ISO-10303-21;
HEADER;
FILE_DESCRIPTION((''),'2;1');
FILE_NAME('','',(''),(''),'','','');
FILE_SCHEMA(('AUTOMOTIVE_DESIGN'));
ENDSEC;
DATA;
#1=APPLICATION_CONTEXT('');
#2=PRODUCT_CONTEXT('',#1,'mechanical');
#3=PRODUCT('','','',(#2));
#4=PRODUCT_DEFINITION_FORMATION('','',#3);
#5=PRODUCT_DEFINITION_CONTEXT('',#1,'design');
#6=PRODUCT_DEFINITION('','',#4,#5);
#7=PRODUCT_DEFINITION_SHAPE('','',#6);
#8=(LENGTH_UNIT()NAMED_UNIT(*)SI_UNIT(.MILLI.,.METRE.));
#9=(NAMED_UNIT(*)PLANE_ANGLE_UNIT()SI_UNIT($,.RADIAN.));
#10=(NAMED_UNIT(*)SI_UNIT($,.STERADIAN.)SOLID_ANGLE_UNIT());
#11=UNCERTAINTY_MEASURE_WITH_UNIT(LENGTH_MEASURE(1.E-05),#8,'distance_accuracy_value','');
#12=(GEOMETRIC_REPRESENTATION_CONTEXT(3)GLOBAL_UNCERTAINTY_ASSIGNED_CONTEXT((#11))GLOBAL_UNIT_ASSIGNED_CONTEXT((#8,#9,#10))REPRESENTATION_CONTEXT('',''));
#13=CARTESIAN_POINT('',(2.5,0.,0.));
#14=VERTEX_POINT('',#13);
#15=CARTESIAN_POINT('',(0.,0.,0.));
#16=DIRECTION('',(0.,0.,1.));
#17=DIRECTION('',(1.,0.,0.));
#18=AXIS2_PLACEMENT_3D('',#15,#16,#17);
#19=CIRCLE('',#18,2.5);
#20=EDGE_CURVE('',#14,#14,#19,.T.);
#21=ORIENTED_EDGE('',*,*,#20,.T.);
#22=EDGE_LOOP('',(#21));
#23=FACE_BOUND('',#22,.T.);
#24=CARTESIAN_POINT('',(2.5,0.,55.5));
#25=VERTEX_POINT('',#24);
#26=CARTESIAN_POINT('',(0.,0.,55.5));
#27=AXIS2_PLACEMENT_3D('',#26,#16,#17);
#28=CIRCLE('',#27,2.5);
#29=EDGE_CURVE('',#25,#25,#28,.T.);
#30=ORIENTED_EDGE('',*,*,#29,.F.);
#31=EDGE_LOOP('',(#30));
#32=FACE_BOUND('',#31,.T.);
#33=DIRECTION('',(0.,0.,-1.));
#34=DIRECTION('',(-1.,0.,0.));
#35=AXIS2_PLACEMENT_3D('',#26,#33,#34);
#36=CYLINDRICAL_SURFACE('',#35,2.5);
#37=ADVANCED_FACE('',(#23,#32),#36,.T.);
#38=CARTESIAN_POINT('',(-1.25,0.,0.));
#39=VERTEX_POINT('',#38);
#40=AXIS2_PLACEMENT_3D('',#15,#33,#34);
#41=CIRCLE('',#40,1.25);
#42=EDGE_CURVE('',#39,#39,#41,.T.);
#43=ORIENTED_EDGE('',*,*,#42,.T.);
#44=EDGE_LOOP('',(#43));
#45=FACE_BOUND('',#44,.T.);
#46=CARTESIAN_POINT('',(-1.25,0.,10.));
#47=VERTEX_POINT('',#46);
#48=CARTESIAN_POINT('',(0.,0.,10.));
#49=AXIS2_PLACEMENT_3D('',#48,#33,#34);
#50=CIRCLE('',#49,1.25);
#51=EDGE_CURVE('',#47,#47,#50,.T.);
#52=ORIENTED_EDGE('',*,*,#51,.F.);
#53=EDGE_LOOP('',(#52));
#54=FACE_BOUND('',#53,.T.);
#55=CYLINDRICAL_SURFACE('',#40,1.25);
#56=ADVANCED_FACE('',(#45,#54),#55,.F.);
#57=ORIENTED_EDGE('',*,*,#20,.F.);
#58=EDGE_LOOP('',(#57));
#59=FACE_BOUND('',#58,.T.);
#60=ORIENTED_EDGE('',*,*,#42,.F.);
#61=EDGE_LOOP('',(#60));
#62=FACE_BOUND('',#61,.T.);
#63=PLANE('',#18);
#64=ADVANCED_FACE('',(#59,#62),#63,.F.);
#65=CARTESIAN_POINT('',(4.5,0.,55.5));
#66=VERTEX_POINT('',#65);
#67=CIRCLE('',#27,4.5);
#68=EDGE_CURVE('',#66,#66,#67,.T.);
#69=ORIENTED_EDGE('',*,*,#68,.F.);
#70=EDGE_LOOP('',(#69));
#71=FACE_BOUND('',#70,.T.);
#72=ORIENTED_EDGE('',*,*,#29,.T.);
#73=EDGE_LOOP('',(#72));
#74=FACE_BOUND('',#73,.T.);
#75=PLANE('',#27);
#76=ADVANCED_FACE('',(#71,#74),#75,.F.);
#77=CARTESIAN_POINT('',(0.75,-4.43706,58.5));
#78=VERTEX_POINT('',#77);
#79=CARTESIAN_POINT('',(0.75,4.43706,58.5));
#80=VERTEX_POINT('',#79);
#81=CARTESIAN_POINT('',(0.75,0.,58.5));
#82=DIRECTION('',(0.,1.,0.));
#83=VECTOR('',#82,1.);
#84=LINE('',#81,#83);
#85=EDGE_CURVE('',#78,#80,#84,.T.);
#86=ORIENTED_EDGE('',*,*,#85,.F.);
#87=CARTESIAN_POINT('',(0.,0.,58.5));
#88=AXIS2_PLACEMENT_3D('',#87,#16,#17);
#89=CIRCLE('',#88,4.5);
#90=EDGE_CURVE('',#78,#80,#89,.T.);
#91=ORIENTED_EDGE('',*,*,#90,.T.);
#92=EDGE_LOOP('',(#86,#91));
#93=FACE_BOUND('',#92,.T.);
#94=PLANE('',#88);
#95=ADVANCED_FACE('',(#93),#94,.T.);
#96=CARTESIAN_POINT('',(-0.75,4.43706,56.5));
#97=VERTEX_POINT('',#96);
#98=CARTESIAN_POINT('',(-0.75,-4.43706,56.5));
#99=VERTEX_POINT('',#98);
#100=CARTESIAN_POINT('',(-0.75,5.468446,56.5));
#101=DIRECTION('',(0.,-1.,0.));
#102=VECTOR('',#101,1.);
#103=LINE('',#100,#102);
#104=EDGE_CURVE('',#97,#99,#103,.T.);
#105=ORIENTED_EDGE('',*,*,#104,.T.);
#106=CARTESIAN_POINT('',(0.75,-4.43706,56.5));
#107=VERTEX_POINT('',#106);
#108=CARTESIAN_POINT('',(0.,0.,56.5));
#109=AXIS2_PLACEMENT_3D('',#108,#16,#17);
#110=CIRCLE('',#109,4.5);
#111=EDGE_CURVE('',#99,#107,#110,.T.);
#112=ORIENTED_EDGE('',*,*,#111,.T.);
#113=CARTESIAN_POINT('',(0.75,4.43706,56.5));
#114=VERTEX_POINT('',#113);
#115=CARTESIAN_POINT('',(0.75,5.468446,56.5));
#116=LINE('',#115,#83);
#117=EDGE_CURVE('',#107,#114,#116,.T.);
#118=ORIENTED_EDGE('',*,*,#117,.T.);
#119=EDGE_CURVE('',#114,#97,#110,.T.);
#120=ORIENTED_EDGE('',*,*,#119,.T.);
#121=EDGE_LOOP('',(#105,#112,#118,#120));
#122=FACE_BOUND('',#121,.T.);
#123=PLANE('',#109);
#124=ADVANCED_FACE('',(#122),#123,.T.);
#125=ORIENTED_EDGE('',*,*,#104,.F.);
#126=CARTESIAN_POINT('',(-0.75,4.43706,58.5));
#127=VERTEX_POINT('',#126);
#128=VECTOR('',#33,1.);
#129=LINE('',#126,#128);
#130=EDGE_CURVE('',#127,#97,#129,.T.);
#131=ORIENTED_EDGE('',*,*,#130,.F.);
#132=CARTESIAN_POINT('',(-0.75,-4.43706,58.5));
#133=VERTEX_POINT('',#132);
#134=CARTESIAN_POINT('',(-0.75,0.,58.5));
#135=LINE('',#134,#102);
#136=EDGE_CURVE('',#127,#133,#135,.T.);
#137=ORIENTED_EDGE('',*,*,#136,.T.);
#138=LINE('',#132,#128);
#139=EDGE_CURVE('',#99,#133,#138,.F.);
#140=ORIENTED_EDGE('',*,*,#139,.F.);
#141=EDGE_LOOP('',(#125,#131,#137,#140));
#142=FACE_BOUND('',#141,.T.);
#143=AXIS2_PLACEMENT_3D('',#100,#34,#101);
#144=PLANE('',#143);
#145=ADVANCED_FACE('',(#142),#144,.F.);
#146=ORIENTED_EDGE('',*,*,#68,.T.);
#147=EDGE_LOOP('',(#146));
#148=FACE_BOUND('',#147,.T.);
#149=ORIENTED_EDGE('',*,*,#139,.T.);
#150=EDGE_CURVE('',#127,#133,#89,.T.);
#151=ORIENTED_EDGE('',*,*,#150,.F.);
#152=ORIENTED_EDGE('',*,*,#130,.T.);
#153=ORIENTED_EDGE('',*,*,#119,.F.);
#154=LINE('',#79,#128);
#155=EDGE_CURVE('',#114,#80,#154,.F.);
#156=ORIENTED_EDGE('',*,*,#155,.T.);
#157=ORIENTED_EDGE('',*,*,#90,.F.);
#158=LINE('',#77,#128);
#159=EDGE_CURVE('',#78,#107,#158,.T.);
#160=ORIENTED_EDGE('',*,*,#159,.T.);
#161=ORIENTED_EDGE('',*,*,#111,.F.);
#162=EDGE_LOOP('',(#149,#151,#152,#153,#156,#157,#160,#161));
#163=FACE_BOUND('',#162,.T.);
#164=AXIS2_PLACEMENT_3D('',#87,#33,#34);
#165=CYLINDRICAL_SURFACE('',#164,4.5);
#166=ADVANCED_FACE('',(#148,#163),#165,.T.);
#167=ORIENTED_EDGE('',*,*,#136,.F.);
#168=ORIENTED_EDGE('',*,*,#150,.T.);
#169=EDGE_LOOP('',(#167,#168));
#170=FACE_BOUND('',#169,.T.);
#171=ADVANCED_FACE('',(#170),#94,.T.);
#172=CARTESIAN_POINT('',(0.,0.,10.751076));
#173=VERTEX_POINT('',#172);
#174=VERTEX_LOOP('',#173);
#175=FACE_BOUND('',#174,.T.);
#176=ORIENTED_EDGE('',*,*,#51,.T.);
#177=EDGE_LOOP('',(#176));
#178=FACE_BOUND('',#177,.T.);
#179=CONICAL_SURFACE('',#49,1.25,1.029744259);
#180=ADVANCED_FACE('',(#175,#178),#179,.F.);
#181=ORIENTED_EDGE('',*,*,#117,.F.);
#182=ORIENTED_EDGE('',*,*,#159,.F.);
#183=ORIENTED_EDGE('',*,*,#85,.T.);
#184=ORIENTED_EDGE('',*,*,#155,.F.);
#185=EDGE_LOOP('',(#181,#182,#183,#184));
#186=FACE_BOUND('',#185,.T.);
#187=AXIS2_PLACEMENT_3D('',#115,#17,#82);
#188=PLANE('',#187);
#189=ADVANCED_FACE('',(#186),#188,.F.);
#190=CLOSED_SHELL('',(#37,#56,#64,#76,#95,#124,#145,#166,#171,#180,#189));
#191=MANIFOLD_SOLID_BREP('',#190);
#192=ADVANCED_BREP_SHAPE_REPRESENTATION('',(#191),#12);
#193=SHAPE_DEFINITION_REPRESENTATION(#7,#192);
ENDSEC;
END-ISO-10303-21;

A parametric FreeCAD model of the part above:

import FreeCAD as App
import Part
import Sketcher
from FreeCAD import Vector

doc = App.newDocument("Part")
body = doc.addObject("PartDesign::Body", "Body")

sketch1 = body.newObject("Sketcher::SketchObject", "Sketch")
sketch1.AttachmentSupport = (doc.getObject("XY_Plane"), [""])
sketch1.MapMode = "FlatFace"
sketch1.addGeometry(Part.Circle(Vector(0, 0, 0), Vector(0, 0, 1), 2.5), False)
sketch1.addConstraint([
    Sketcher.Constraint("Coincident", 0, 3, -1, 1),
    Sketcher.Constraint("Diameter", 0, 5.0),
])
pad1 = body.newObject("PartDesign::Pad", "Pad")
pad1.Profile = sketch1
pad1.Length = 55.5

sketch2 = body.newObject("Sketcher::SketchObject", "Sketch001")
sketch2.AttachmentSupport = (doc.getObject("XY_Plane"), [""])
sketch2.MapMode = "FlatFace"
sketch2.AttachmentOffset = App.Placement(Vector(0, 0, 55.5), App.Rotation())
sketch2.addGeometry(Part.Circle(Vector(0, 0, 0), Vector(0, 0, 1), 4.5), False)
sketch2.addConstraint([
    Sketcher.Constraint("Coincident", 0, 3, -1, 1),
    Sketcher.Constraint("Diameter", 0, 9.0),
])
pad2 = body.newObject("PartDesign::Pad", "Pad001")
pad2.Profile = sketch2
pad2.Length = 3

sketch3 = body.newObject("Sketcher::SketchObject", "Sketch002")
sketch3.AttachmentSupport = (doc.getObject("XY_Plane"), [""])
sketch3.MapMode = "FlatFace"
sketch3.AttachmentOffset = App.Placement(Vector(0, 0, 58.5), App.Rotation())
sketch3.addGeometry([
    Part.LineSegment(Vector(-0.8, 5.5, 0), Vector(-0.8, -5.5, 0)),
    Part.LineSegment(Vector(-0.8, -5.5, 0), Vector(0.8, -5.5, 0)),
    Part.LineSegment(Vector(0.8, -5.5, 0), Vector(0.8, 5.5, 0)),
    Part.LineSegment(Vector(0.8, 5.5, 0), Vector(-0.8, 5.5, 0)),
], False)
sketch3.addConstraint([
    Sketcher.Constraint("Coincident", 0, 2, 1, 1),
    Sketcher.Constraint("Coincident", 1, 2, 2, 1),
    Sketcher.Constraint("Coincident", 2, 2, 3, 1),
    Sketcher.Constraint("Coincident", 3, 2, 0, 1),
    Sketcher.Constraint("Vertical", 0),
    Sketcher.Constraint("Horizontal", 1),
    Sketcher.Constraint("Vertical", 2),
    Sketcher.Constraint("Horizontal", 3),
    Sketcher.Constraint("Symmetric", 0, 2, 2, 2, -1, 1),
    Sketcher.Constraint("DistanceX", 1, 1, 1, 2, 1.5),
    Sketcher.Constraint("DistanceY", 0, 2, 0, 1, 10.936892),
])
pocket1 = body.newObject("PartDesign::Pocket", "Pocket")
pocket1.Profile = sketch3
pocket1.Length = 2

sketch4 = body.newObject("Sketcher::SketchObject", "Sketch003")
sketch4.AttachmentSupport = (doc.getObject("XY_Plane"), [""])
sketch4.MapMode = "FlatFace"
sketch4.addGeometry(Part.Circle(Vector(0, 0, 0), Vector(0, 0, 1), 1.2), False)
sketch4.addConstraint([
    Sketcher.Constraint("Coincident", 0, 3, -1, 1),
    Sketcher.Constraint("Diameter", 0, 2.5),
])
doc.recompute()
hole = body.newObject("PartDesign::Hole", "Hole")
hole.Profile = sketch4
hole.ThreadType = "None"
hole.Diameter = 2.5
hole.DepthType = "Dimension"
hole.Depth = 10
hole.DrillPoint = "Angled"
hole.DrillPointAngle = 118
hole.Reversed = True

doc.recompute()
